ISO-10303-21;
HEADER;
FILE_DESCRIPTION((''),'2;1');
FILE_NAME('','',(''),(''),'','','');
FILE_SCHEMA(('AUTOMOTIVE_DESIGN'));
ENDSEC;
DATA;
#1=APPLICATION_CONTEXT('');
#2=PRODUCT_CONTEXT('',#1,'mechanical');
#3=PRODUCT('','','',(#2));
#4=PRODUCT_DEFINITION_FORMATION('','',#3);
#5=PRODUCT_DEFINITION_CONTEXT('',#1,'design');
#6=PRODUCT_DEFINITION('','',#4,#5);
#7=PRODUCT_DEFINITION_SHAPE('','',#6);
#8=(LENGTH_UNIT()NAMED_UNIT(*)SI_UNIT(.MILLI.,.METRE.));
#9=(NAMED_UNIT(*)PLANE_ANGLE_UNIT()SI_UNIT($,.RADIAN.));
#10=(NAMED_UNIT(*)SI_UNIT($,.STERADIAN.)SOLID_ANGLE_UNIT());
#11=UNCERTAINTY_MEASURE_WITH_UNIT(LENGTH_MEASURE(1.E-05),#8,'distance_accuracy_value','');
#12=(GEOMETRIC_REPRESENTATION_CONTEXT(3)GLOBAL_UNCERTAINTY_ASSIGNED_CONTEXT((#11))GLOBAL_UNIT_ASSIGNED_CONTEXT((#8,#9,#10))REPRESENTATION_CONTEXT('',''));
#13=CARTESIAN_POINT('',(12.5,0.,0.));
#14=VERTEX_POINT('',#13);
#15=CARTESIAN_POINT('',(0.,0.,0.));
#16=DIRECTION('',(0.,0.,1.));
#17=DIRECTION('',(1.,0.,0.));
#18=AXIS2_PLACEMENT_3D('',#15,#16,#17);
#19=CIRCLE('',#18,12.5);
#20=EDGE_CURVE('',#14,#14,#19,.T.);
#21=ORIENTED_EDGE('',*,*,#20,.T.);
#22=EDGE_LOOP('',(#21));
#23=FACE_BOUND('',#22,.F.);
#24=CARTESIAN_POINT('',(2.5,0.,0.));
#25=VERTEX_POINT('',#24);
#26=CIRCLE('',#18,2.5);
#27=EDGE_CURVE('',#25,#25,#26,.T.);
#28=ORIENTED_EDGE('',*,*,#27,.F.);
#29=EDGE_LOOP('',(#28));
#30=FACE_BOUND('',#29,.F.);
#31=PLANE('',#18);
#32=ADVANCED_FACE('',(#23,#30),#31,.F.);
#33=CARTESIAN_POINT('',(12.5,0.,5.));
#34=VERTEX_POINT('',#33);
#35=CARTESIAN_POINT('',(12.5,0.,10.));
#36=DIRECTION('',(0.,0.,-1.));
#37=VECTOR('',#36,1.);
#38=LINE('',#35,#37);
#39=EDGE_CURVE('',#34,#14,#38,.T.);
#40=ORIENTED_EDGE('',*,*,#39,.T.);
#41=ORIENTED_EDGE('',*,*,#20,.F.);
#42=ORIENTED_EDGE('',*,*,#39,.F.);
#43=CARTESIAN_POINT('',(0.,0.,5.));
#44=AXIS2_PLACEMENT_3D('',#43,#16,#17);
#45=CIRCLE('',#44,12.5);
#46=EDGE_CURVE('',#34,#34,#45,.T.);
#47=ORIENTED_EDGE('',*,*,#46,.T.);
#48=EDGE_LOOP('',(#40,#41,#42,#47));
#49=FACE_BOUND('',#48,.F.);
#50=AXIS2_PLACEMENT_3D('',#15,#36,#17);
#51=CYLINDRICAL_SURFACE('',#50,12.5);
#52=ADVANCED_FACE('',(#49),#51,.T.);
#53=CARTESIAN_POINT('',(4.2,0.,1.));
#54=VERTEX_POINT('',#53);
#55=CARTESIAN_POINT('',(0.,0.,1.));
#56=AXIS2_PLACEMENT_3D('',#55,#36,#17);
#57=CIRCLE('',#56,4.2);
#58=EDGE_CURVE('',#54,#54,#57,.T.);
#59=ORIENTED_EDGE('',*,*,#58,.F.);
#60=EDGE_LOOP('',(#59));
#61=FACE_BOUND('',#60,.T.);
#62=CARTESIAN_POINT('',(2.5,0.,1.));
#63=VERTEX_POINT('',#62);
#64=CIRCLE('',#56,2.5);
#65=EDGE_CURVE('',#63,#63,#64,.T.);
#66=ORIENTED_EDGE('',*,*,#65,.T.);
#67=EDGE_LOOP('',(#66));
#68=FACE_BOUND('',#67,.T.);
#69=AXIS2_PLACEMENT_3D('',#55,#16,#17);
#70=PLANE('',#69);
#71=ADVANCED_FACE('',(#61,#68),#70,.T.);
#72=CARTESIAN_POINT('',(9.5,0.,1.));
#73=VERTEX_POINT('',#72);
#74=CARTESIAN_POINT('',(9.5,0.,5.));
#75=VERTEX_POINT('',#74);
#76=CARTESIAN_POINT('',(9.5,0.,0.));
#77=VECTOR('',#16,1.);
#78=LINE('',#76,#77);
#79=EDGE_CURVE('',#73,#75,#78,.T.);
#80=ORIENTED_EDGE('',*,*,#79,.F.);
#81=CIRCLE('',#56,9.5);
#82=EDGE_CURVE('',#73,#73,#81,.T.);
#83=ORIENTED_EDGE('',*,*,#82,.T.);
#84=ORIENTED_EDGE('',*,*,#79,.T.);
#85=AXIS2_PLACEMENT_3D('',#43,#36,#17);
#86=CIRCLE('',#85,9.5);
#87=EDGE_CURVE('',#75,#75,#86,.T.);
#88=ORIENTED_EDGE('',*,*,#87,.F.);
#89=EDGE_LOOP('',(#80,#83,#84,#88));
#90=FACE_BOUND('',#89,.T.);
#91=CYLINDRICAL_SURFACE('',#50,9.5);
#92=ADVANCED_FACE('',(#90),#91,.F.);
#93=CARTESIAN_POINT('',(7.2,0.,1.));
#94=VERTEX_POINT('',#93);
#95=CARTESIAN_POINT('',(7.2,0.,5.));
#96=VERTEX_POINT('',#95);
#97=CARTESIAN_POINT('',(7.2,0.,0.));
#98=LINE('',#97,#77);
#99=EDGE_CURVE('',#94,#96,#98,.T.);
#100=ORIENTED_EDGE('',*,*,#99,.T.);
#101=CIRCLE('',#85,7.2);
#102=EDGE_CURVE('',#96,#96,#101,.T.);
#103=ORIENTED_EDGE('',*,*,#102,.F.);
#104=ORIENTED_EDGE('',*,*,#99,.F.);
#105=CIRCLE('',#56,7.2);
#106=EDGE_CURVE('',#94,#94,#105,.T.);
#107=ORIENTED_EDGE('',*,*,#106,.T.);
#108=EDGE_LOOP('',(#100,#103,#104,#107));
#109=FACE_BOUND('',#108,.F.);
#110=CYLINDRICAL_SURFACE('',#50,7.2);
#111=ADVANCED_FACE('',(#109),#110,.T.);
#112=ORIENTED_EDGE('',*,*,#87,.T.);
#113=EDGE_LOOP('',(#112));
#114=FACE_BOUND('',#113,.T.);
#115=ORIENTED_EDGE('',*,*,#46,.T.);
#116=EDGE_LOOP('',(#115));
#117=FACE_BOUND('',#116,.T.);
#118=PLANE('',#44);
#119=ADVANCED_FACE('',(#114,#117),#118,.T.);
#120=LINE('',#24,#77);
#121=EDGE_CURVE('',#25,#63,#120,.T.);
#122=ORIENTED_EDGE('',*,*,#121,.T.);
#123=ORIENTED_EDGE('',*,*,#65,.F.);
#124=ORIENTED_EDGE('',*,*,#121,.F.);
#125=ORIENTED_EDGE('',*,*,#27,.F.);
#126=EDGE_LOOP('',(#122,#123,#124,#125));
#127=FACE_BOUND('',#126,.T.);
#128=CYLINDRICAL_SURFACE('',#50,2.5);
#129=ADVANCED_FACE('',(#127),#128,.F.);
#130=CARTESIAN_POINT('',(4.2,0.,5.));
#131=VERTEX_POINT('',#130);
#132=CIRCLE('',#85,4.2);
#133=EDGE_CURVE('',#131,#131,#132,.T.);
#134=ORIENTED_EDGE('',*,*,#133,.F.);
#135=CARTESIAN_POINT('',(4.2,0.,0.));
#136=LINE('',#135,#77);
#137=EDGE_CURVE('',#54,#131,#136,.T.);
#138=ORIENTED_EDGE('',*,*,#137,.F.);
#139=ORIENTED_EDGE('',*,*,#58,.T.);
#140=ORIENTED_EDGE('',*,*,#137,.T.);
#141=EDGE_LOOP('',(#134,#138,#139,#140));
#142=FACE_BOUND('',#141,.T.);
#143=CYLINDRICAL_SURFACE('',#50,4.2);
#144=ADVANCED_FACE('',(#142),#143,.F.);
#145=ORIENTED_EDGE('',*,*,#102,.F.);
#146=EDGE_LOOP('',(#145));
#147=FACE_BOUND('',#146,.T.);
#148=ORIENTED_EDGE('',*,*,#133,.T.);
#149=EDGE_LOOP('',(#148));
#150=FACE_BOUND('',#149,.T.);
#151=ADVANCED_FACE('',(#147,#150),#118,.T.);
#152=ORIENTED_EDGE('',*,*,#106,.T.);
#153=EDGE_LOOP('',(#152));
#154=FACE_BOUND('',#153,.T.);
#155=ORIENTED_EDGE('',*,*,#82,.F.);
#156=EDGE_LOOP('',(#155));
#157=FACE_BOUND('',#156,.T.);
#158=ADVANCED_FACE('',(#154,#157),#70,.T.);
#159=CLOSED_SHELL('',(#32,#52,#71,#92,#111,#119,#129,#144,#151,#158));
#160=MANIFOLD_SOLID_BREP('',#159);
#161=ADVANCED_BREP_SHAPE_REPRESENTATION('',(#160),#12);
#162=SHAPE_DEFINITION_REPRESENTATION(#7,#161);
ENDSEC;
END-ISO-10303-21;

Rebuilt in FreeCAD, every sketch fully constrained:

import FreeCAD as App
import Part
import Sketcher
Q = App.Units.Quantity

doc = App.newDocument("Part")
body = doc.addObject("PartDesign::Body", "Body")

sketch1 = doc.addObject("Sketcher::SketchObject", "Sketch")
body.addObject(sketch1)
sketch1.AttachmentSupport = (doc.XY_Plane, [""])
sketch1.MapMode = "FlatFace"
sketch1.AttachmentOffset = App.Placement(App.Vector(0, 0, 5), App.Rotation())
sketch1.addGeometry(Part.Circle(App.Vector(0, 0, 0), App.Vector(0, 0, 1), 12.5), False)
sketch1.addConstraint([
    Sketcher.Constraint("Coincident", 0, 3, -1, 1),
    Sketcher.Constraint("Diameter", 0, Q("25 mm")),
])
pad1 = doc.addObject("PartDesign::Pad", "Pad")
body.addObject(pad1)
pad1.Profile = sketch1
pad1.Length = 10
body2 = doc.addObject("PartDesign::Body", "Body001")

sketch2 = doc.addObject("Sketcher::SketchObject", "Sketch001")
body2.addObject(sketch2)
sketch2.AttachmentSupport = (doc.getObject("XY_Plane001"), [""])
sketch2.MapMode = "FlatFace"
sketch2.addGeometry(Part.Circle(App.Vector(0, 0, 0), App.Vector(0, 0, 1), 2.5), False)
sketch2.addConstraint([
    Sketcher.Constraint("Coincident", 0, 3, -1, 1),
    Sketcher.Constraint("Diameter", 0, Q("5 mm")),
])
pad2 = doc.addObject("PartDesign::Pad", "Pad001")
body2.addObject(pad2)
pad2.Profile = sketch2
pad2.Length = 10
body3 = doc.addObject("PartDesign::Body", "Body002")

sketch3 = doc.addObject("Sketcher::SketchObject", "Sketch002")
body3.addObject(sketch3)
sketch3.AttachmentSupport = (doc.getObject("XY_Plane002"), [""])
sketch3.MapMode = "FlatFace"
sketch3.addGeometry(Part.Circle(App.Vector(0, 0, 0), App.Vector(0, 0, 1), 9.5), False)
sketch3.addConstraint([
    Sketcher.Constraint("Coincident", 0, 3, -1, 1),
    Sketcher.Constraint("Diameter", 0, Q("19 mm")),
])
pad3 = doc.addObject("PartDesign::Pad", "Pad002")
body3.addObject(pad3)
pad3.Profile = sketch3
pad3.Length = 10
body4 = doc.addObject("PartDesign::Body", "Body003")

sketch4 = doc.addObject("Sketcher::SketchObject", "Sketch003")
body4.addObject(sketch4)
sketch4.AttachmentSupport = (doc.getObject("XY_Plane003"), [""])
sketch4.MapMode = "FlatFace"
sketch4.addGeometry(Part.Circle(App.Vector(0, 0, 0), App.Vector(0, 0, 1), 12.5), False)
sketch4.addConstraint([
    Sketcher.Constraint("Coincident", 0, 3, -1, 1),
    Sketcher.Constraint("Diameter", 0, Q("25 mm")),
])
pad4 = doc.addObject("PartDesign::Pad", "Pad003")
body4.addObject(pad4)
pad4.Profile = sketch4
pad4.Length = 10
doc.recompute()

boolean = doc.addObject("PartDesign::Boolean", "Boolean")
body4.addObject(boolean)
boolean.Type = "Cut"
boolean.addObjects([body3])
body5 = doc.addObject("PartDesign::Body", "Body004")

sketch5 = doc.addObject("Sketcher::SketchObject", "Sketch004")
body5.addObject(sketch5)
sketch5.AttachmentSupport = (doc.getObject("XY_Plane004"), [""])
sketch5.MapMode = "FlatFace"
sketch5.addGeometry(Part.Circle(App.Vector(0, 0, 0), App.Vector(0, 0, 1), 4.2), False)
sketch5.addConstraint([
    Sketcher.Constraint("Coincident", 0, 3, -1, 1),
    Sketcher.Constraint("Diameter", 0, Q("8.4 mm")),
])
pad5 = doc.addObject("PartDesign::Pad", "Pad004")
body5.addObject(pad5)
pad5.Profile = sketch5
pad5.Length = 10
body6 = doc.addObject("PartDesign::Body", "Body005")

sketch6 = doc.addObject("Sketcher::SketchObject", "Sketch005")
body6.addObject(sketch6)
sketch6.AttachmentSupport = (doc.getObject("XY_Plane005"), [""])
sketch6.MapMode = "FlatFace"
sketch6.addGeometry(Part.Circle(App.Vector(0, 0, 0), App.Vector(0, 0, 1), 7.2), False)
sketch6.addConstraint([
    Sketcher.Constraint("Coincident", 0, 3, -1, 1),
    Sketcher.Constraint("Diameter", 0, Q("14.4 mm")),
])
pad6 = doc.addObject("PartDesign::Pad", "Pad005")
body6.addObject(pad6)
pad6.Profile = sketch6
pad6.Length = 10
doc.recompute()

boolean2 = doc.addObject("PartDesign::Boolean", "Boolean001")
body6.addObject(boolean2)
boolean2.Type = "Cut"
boolean2.addObjects([body5])
body7 = doc.addObject("PartDesign::Body", "Body006")

sketch7 = doc.addObject("Sketcher::SketchObject", "Sketch006")
body7.addObject(sketch7)
sketch7.AttachmentSupport = (doc.getObject("XY_Plane006"), [""])
sketch7.MapMode = "FlatFace"
sketch7.addGeometry(Part.Circle(App.Vector(0, 0, 0), App.Vector(0, 0, 1), 12.5), False)
sketch7.addConstraint([
    Sketcher.Constraint("Coincident", 0, 3, -1, 1),
    Sketcher.Constraint("Diameter", 0, Q("25 mm")),
])
pad7 = doc.addObject("PartDesign::Pad", "Pad006")
body7.addObject(pad7)
pad7.Profile = sketch7
pad7.Length = 1
doc.recompute()

boolean3 = doc.addObject("PartDesign::Boolean", "Boolean002")
body7.addObject(boolean3)
boolean3.Type = "Fuse"
boolean3.addObjects([body4])
doc.recompute()

boolean4 = doc.addObject("PartDesign::Boolean", "Boolean003")
body7.addObject(boolean4)
boolean4.Type = "Fuse"
boolean4.addObjects([body6])
doc.recompute()

boolean5 = doc.addObject("PartDesign::Boolean", "Boolean004")
body7.addObject(boolean5)
boolean5.Type = "Cut"
boolean5.addObjects([body2])
doc.recompute()

boolean6 = doc.addObject("PartDesign::Boolean", "Boolean005")
body7.addObject(boolean6)
boolean6.Type = "Cut"
boolean6.addObjects([body])

doc.recompute()
